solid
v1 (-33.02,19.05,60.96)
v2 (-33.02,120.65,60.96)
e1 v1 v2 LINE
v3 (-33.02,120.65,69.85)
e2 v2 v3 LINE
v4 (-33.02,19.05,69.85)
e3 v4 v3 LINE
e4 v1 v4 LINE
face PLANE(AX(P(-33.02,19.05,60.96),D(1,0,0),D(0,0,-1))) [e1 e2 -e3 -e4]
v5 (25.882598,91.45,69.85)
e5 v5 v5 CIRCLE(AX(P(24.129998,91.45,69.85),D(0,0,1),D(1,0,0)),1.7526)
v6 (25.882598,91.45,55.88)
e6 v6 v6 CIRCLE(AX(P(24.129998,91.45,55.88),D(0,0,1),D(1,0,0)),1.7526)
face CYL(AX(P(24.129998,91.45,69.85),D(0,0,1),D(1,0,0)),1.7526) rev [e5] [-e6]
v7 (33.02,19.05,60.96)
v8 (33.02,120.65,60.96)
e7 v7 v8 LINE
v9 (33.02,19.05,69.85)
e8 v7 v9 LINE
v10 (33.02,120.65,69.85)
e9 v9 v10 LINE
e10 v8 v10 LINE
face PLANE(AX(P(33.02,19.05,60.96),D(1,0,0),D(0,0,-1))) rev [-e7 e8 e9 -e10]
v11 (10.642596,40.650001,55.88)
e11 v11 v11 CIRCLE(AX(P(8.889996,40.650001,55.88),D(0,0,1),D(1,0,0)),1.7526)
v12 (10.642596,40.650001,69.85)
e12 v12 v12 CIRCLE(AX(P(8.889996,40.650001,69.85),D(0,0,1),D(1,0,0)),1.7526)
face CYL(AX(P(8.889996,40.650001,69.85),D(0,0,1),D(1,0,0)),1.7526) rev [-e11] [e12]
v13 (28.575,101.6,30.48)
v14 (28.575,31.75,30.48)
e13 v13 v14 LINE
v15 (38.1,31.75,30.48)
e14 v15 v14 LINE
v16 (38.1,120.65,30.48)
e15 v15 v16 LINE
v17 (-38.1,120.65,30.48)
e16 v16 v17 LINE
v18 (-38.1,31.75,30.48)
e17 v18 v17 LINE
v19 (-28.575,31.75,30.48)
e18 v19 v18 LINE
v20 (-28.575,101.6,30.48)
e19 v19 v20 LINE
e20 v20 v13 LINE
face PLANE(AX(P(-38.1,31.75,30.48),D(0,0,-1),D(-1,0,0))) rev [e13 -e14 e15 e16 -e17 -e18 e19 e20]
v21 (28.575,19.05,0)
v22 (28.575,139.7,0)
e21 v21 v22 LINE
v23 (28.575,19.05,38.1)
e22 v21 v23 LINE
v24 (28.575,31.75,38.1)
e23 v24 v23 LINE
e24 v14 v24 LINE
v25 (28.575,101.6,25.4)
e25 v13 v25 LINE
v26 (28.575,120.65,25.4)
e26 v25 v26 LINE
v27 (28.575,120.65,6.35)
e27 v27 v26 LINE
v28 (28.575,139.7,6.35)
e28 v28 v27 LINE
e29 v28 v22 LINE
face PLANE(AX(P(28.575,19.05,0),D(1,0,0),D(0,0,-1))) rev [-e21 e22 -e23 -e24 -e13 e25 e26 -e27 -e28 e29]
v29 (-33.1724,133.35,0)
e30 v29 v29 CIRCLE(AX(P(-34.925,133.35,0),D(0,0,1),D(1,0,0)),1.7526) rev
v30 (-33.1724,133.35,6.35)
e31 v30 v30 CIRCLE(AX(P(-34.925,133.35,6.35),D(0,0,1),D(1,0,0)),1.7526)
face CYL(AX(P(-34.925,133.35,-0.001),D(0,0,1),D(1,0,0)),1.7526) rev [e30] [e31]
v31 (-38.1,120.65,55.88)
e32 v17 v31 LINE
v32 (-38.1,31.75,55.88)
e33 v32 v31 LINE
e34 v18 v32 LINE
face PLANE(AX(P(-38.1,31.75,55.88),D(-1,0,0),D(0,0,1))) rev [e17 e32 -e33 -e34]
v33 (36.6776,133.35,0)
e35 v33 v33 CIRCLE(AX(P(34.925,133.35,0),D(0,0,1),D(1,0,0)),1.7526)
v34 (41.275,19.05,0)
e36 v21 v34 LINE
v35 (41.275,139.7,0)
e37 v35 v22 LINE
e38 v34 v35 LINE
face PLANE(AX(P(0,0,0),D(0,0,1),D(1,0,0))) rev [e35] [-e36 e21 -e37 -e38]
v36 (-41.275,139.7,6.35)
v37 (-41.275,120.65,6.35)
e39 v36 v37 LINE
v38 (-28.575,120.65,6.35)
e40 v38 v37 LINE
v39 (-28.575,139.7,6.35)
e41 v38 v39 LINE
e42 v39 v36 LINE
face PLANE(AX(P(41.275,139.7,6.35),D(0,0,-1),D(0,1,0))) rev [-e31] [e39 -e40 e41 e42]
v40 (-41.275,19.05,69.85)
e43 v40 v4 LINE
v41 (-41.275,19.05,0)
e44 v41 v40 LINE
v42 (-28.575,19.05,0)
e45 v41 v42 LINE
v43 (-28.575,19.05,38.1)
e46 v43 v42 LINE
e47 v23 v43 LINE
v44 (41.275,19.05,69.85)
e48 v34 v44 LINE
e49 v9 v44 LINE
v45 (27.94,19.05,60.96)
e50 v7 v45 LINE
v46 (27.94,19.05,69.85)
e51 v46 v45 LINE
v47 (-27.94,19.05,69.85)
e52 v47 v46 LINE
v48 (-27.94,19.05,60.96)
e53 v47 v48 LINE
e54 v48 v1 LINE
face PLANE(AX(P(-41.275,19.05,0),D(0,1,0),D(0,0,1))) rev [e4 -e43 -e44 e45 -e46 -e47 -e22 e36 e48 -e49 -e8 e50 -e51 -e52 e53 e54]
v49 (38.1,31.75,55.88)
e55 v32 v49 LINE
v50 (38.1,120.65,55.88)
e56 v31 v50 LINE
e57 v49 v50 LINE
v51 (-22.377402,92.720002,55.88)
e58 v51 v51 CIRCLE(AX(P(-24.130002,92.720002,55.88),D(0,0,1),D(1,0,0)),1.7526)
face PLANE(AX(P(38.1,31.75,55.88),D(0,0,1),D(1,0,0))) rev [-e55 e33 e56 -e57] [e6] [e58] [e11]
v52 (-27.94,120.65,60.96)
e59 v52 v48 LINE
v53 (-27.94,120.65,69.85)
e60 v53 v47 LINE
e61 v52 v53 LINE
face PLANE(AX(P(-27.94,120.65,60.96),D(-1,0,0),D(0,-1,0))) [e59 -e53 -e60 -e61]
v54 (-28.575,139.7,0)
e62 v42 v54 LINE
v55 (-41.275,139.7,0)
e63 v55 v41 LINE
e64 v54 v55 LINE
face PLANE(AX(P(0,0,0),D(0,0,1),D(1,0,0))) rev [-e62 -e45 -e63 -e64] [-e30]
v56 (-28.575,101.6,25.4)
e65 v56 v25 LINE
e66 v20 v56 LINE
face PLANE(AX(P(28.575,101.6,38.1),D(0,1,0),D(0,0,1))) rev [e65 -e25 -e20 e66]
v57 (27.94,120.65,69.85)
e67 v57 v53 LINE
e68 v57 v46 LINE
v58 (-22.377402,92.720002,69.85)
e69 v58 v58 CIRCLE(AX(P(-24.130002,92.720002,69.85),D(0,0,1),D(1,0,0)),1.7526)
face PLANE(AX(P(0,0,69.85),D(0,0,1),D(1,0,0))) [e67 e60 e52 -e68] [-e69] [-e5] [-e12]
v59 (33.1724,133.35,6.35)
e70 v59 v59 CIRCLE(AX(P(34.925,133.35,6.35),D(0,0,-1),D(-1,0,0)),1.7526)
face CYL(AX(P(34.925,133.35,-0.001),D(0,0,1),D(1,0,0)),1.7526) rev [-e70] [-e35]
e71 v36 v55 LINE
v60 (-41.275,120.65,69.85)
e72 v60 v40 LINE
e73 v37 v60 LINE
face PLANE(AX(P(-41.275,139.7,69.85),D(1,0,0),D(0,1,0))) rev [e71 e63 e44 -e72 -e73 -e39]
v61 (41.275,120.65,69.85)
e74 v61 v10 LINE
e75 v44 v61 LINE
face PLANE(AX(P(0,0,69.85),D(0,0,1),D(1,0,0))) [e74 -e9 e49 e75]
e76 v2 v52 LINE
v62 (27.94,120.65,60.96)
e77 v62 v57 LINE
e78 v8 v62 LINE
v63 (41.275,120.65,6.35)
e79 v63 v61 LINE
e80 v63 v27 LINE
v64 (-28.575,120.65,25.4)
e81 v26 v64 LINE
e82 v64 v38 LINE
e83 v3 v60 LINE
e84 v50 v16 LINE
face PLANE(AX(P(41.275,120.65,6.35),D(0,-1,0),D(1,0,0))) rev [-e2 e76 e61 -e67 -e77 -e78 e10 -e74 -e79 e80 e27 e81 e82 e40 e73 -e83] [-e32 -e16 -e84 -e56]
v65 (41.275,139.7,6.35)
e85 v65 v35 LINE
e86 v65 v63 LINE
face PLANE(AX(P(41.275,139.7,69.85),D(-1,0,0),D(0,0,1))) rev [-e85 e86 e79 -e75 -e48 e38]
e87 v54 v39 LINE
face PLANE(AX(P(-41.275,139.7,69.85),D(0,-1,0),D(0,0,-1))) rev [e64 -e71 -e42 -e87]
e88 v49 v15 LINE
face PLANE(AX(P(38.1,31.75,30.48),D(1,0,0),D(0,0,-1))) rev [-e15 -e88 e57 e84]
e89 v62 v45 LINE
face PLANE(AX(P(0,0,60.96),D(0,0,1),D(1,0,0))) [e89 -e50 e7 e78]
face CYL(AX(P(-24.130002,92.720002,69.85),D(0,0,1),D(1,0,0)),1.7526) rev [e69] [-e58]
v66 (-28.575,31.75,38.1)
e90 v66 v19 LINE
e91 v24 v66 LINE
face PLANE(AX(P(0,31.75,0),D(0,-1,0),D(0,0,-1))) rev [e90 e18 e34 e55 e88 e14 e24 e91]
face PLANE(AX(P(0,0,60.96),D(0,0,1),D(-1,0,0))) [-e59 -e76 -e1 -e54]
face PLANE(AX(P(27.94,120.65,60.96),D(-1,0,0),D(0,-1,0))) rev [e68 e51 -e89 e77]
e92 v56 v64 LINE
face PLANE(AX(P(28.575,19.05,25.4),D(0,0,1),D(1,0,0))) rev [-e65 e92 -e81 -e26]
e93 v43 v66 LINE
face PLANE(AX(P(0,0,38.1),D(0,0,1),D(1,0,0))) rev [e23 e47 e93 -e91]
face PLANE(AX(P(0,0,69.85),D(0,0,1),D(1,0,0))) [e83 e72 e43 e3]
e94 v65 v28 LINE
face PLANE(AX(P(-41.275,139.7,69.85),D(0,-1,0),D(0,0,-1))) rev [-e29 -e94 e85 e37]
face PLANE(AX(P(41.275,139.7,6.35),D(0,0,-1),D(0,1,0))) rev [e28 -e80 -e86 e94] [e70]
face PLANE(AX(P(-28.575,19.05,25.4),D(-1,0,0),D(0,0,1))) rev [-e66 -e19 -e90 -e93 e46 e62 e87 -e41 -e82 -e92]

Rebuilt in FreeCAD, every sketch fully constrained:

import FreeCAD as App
import Part
import Sketcher
Q = App.Units.Quantity


def add_polygon(sketch, points):
    """Adds a closed chain of lines whose ends are joined by coincident constraints."""
    first, n = sketch.GeometryCount, len(points)
    for a, b in zip(points, points[1:] + points[:1]):
        sketch.addGeometry(Part.LineSegment(App.Vector(*a, 0), App.Vector(*b, 0)), False)
    for i in range(n):
        sketch.addConstraint(Sketcher.Constraint("Coincident", first + i, 2, first + (i + 1) % n, 1))

doc = App.newDocument("Part")
body = doc.addObject("PartDesign::Body", "Body")

sketch1 = doc.addObject("Sketcher::SketchObject", "Sketch")
body.addObject(sketch1)
sketch1.AttachmentSupport = (doc.XY_Plane, [""])
sketch1.MapMode = "FlatFace"
add_polygon(sketch1, [(-41, 140), (-41, 19), (41, 19), (41, 140)])
sketch1.addConstraint(Sketcher.Constraint("Vertical", 0))
sketch1.addConstraint(Sketcher.Constraint("Horizontal", 1))
sketch1.addConstraint(Sketcher.Constraint("Vertical", 2))
sketch1.addConstraint(Sketcher.Constraint("Horizontal", 3))
sketch1.addConstraint(Sketcher.Constraint("DistanceX", 1, 1, 1, 2, Q("3.25 in")))
sketch1.addConstraint(Sketcher.Constraint("DistanceY", 0, 2, 0, 1, Q("4.75 in")))
sketch1.addConstraint(Sketcher.Constraint("DistanceY", -1, 1, 2, 2, Q("5.5 in")))
sketch1.addConstraint(Sketcher.Constraint("DistanceX", 0, 2, -1, 1, Q("1.625 in")))
pad1 = doc.addObject("PartDesign::Pad", "Pad")
body.addObject(pad1)
pad1.Profile = sketch1
pad1.Length = Q("2.75 in")

sketch2 = doc.addObject("Sketcher::SketchObject", "Sketch001")
body.addObject(sketch2)
sketch2.AttachmentSupport = (doc.XZ_Plane, [""])
sketch2.MapMode = "FlatFace"
sketch2.AttachmentOffset = App.Placement(App.Vector(0, 0, -5.5 * 25.4), App.Rotation())
add_polygon(sketch2, [(-38, 30), (-38, 56), (38, 56), (38, 30)])
sketch2.addConstraint(Sketcher.Constraint("Vertical", 0))
sketch2.addConstraint(Sketcher.Constraint("Horizontal", 1))
sketch2.addConstraint(Sketcher.Constraint("Vertical", 2))
sketch2.addConstraint(Sketcher.Constraint("Horizontal", 3))
sketch2.addConstraint(Sketcher.Constraint("DistanceX", 1, 1, 1, 2, Q("3 in")))
sketch2.addConstraint(Sketcher.Constraint("DistanceY", 0, 1, 0, 2, Q("1 in")))
sketch2.addConstraint(Sketcher.Constraint("DistanceX", 0, 2, -1, 1, Q("1.5 in")))
sketch2.addConstraint(Sketcher.Constraint("DistanceY", -1, 1, 0, 2, Q("2.2 in")))
pocket1 = doc.addObject("PartDesign::Pocket", "Pocket")
body.addObject(pocket1)
pocket1.Profile = sketch2
pocket1.Length = Q("4.25 in")
pocket1.Reversed = True

sketch3 = doc.addObject("Sketcher::SketchObject", "Sketch002")
body.addObject(sketch3)
sketch3.AttachmentSupport = (doc.XY_Plane, [""])
sketch3.MapMode = "FlatFace"
sketch3.AttachmentOffset = App.Placement(App.Vector(0, 0, 2.75 * 25.4), App.Rotation())
add_polygon(sketch3, [(28, 121), (28, 19), (33, 19), (33, 121)])
sketch3.addConstraint(Sketcher.Constraint("Vertical", 0))
sketch3.addConstraint(Sketcher.Constraint("Horizontal", 1))
sketch3.addConstraint(Sketcher.Constraint("Vertical", 2))
sketch3.addConstraint(Sketcher.Constraint("Horizontal", 3))
sketch3.addConstraint(Sketcher.Constraint("DistanceY", 0, 2, 0, 1, Q("4 in")))
sketch3.addConstraint(Sketcher.Constraint("DistanceX", 1, 1, 1, 2, Q("0.2 in")))
sketch3.addConstraint(Sketcher.Constraint("DistanceX", -1, 1, 0, 2, Q("1.1 in")))
sketch3.addConstraint(Sketcher.Constraint("DistanceY", -1, 1, 0, 2, Q("0.75 in")))
pocket2 = doc.addObject("PartDesign::Pocket", "Pocket001")
body.addObject(pocket2)
pocket2.Profile = sketch3
pocket2.Length = Q("0.35 in")
doc.recompute()

mirrored = doc.addObject("PartDesign::Mirrored", "Mirrored")
body.addObject(mirrored)
mirrored.Originals = [pocket2]
mirrored.MirrorPlane = (doc.YZ_Plane, [""])
body.Tip = mirrored

sketch4 = doc.addObject("Sketcher::SketchObject", "Sketch003")
body.addObject(sketch4)
sketch4.AttachmentSupport = (doc.YZ_Plane, [""])
sketch4.MapMode = "FlatFace"
sketch4.AttachmentOffset = App.Placement(App.Vector(0, 0, -1.625 * 25.4), App.Rotation())
add_polygon(sketch4, [(140, 6), (121, 6), (121, 70), (140, 70)])
sketch4.addConstraint(Sketcher.Constraint("Horizontal", 0))
sketch4.addConstraint(Sketcher.Constraint("Vertical", 1))
sketch4.addConstraint(Sketcher.Constraint("Horizontal", 2))
sketch4.addConstraint(Sketcher.Constraint("Vertical", 3))
sketch4.addConstraint(Sketcher.Constraint("DistanceY", 1, 1, 1, 2, Q("2.5 in")))
sketch4.addConstraint(Sketcher.Constraint("DistanceX", 0, 2, 0, 1, Q("0.75 in")))
sketch4.addConstraint(Sketcher.Constraint("DistanceX", -1, 1, 2, 2, Q("5.5 in")))
sketch4.addConstraint(Sketcher.Constraint("DistanceY", -1, 1, 0, 2, Q("0.25 in")))
pocket3 = doc.addObject("PartDesign::Pocket", "Pocket002")
body.addObject(pocket3)
pocket3.Profile = sketch4
pocket3.Type = "ThroughAll"
pocket3.Reversed = True

sketch5 = doc.addObject("Sketcher::SketchObject", "Sketch004")
body.addObject(sketch5)
sketch5.AttachmentSupport = (doc.XZ_Plane, [""])
sketch5.MapMode = "FlatFace"
sketch5.AttachmentOffset = App.Placement(App.Vector(0, 0, -5.5 * 25.4), App.Rotation())
add_polygon(sketch5, [(-29, 0), (-29, 25), (29, 25), (29, 0)])
sketch5.addConstraint(Sketcher.Constraint("Vertical", 0))
sketch5.addConstraint(Sketcher.Constraint("Horizontal", 1))
sketch5.addConstraint(Sketcher.Constraint("Vertical", 2))
sketch5.addConstraint(Sketcher.Constraint("Horizontal", 3))
sketch5.addConstraint(Sketcher.Constraint("Symmetric", 2, 2, 3, 2, -1, 1))
sketch5.addConstraint(Sketcher.Constraint("DistanceY", 0, 1, 0, 2, Q("1 in")))
sketch5.addConstraint(Sketcher.Constraint("DistanceX", 1, 1, 1, 2, Q("2.25 in")))
pocket4 = doc.addObject("PartDesign::Pocket", "Pocket003")
body.addObject(pocket4)
pocket4.Profile = sketch5
pocket4.Type = "ThroughAll"
pocket4.Reversed = True

sketch6 = doc.addObject("Sketcher::SketchObject", "Sketch005")
body.addObject(sketch6)
sketch6.AttachmentSupport = (doc.XY_Plane, [""])
sketch6.MapMode = "FlatFace"
sketch6.AttachmentOffset = App.Placement(App.Vector(0, 0, 2.75 * 25.4), App.Rotation())
sketch6.addGeometry(Part.Circle(App.Vector(-24.1, 92.7, 0), App.Vector(0, 0, 1), 1.8), False)
sketch6.addGeometry(Part.Circle(App.Vector(24.1, 91.5, 0), App.Vector(0, 0, 1), 1.8), False)
sketch6.addGeometry(Part.Circle(App.Vector(8.9, 40.7, 0), App.Vector(0, 0, 1), 1.8), False)
sketch6.addConstraint(Sketcher.Constraint("Equal", 0, 1))
sketch6.addConstraint(Sketcher.Constraint("Equal", 1, 2))
sketch6.addConstraint(Sketcher.Constraint("Diameter", 0, Q("0.138 in")))
sketch6.addConstraint(Sketcher.Constraint("DistanceY", 2, 3, 1, 3, Q("2 in")))
sketch6.addConstraint(Sketcher.Constraint("DistanceX", 0, 3, 1, 3, Q("1.9 in")))
sketch6.addConstraint(Sketcher.Constraint("DistanceX", 2, 3, 1, 3, Q("0.6000001 in")))
sketch6.addConstraint(Sketcher.Constraint("DistanceX", 0, 3, -1, 1, Q("0.9500001 in")))
sketch6.addConstraint(Sketcher.Constraint("DistanceY", 1, 3, 0, 3, Q("0.0500001 in")))
sketch6.addConstraint(Sketcher.Constraint("DistanceY", -1, 1, 1, 3, Q("91.45 mm")))
doc.recompute()
hole = doc.addObject("PartDesign::Hole", "Hole")
body.addObject(hole)
hole.Profile = sketch6
hole.ThreadType = "None"
hole.Diameter = Q("0.138 in")
hole.DepthType = "Dimension"
hole.Depth = Q("0.55 in")
hole.DrillPoint = "Flat"

sketch7 = doc.addObject("Sketcher::SketchObject", "Sketch006")
body.addObject(sketch7)
sketch7.AttachmentSupport = (doc.XZ_Plane, [""])
sketch7.MapMode = "FlatFace"
sketch7.AttachmentOffset = App.Placement(App.Vector(0, 0, -0.75 * 25.4), App.Rotation())
add_polygon(sketch7, [(-33, 70), (-41, 70), (-41, 0), (-29, 0), (-29, 25), (29, 25), (29, 0), (41, 0), (41, 70), (33, 70), (33, 61), (28, 61), (28, 70), (-28, 70), (-28, 61), (-33, 61)])
sketch7.addConstraint(Sketcher.Constraint("Horizontal", 0))
sketch7.addConstraint(Sketcher.Constraint("Vertical", 1))
sketch7.addConstraint(Sketcher.Constraint("Horizontal", 2))
sketch7.addConstraint(Sketcher.Constraint("Vertical", 3))
sketch7.addConstraint(Sketcher.Constraint("Horizontal", 4))
sketch7.addConstraint(Sketcher.Constraint("Vertical", 5))
sketch7.addConstraint(Sketcher.Constraint("Horizontal", 6))
sketch7.addConstraint(Sketcher.Constraint("Vertical", 7))
sketch7.addConstraint(Sketcher.Constraint("Horizontal", 8))
sketch7.addConstraint(Sketcher.Constraint("Vertical", 9))
sketch7.addConstraint(Sketcher.Constraint("Horizontal", 10))
sketch7.addConstraint(Sketcher.Constraint("Vertical", 11))
sketch7.addConstraint(Sketcher.Constraint("Horizontal", 12))
sketch7.addConstraint(Sketcher.Constraint("Vertical", 13))
sketch7.addConstraint(Sketcher.Constraint("Horizontal", 14))
sketch7.addConstraint(Sketcher.Constraint("Vertical", 15))
sketch7.addConstraint(Sketcher.Constraint("Symmetric", 2, 2, 5, 2, -1, 1))
sketch7.addConstraint(Sketcher.Constraint("Symmetric", 1, 2, 6, 2, -2))
sketch7.addConstraint(Sketcher.Constraint("Symmetric", 10, 2, 13, 2, -2))
sketch7.addConstraint(Sketcher.Constraint("Symmetric", 8, 2, 15, 2, -2))
sketch7.addConstraint(Sketcher.Constraint("Horizontal", 8, 2, 11, 2))
sketch7.addConstraint(Sketcher.Constraint("DistanceY", 3, 1, 3, 2, Q("1 in")))
sketch7.addConstraint(Sketcher.Constraint("DistanceX", 2, 1, 2, 2, Q("0.5 in")))
sketch7.addConstraint(Sketcher.Constraint("DistanceX", 10, 2, 10, 1, Q("0.2 in")))
sketch7.addConstraint(Sketcher.Constraint("DistanceX", 12, 2, 12, 1, Q("2.2 in")))
sketch7.addConstraint(Sketcher.Constraint("DistanceX", 4, 1, 4, 2, Q("2.25 in")))
sketch7.addConstraint(Sketcher.Constraint("DistanceY", 1, 2, 1, 1, Q("2.75 in")))
sketch7.addConstraint(Sketcher.Constraint("DistanceY", 9, 2, 9, 1, Q("0.35 in")))
pad2 = doc.addObject("PartDesign::Pad", "Pad001")
body.addObject(pad2)
pad2.Profile = sketch7
pad2.Length = Q("0.25 in")

sketch8 = doc.addObject("Sketcher::SketchObject", "Sketch007")
body.addObject(sketch8)
sketch8.AttachmentSupport = (doc.XY_Plane, [""])
sketch8.MapMode = "FlatFace"
sketch8.AttachmentOffset = App.Placement(App.Vector(0, 0, 1 * 25.4), App.Rotation())
add_polygon(sketch8, [(29, 102), (29, 13), (-29, 13), (-29, 102)])
sketch8.addConstraint(Sketcher.Constraint("Vertical", 0))
sketch8.addConstraint(Sketcher.Constraint("Horizontal", 1))
sketch8.addConstraint(Sketcher.Constraint("Vertical", 2))
sketch8.addConstraint(Sketcher.Constraint("Horizontal", 3))
sketch8.addConstraint(Sketcher.Constraint("DistanceY", 0, 2, 0, 1, Q("3.5 in")))
sketch8.addConstraint(Sketcher.Constraint("DistanceY", -1, 1, 2, 2, Q("4 in")))
sketch8.addConstraint(Sketcher.Constraint("DistanceX", 1, 2, 1, 1, Q("2.25 in")))
sketch8.addConstraint(Sketcher.Constraint("DistanceX", -1, 1, 0, 2, Q("1.125 in")))
pocket5 = doc.addObject("PartDesign::Pocket", "Pocket004")
body.addObject(pocket5)
pocket5.Profile = sketch8
pocket5.Length = Q("0.5 in")
pocket5.Reversed = True

sketch9 = doc.addObject("Sketcher::SketchObject", "Sketch008")
body.addObject(sketch9)
sketch9.AttachmentSupport = (doc.YZ_Plane, [""])
sketch9.MapMode = "FlatFace"
sketch9.AttachmentOffset = App.Placement(App.Vector(0, 0, 1.625 * 25.4), App.Rotation())
add_polygon(sketch9, [(19, 70), (13, 70), (13, 0), (19, 0)])
sketch9.addConstraint(Sketcher.Constraint("Horizontal", 0))
sketch9.addConstraint(Sketcher.Constraint("Vertical", 1))
sketch9.addConstraint(Sketcher.Constraint("Horizontal", 2))
sketch9.addConstraint(Sketcher.Constraint("Vertical", 3))
sketch9.addConstraint(Sketcher.Constraint("PointOnObject", 1, 2, -1))
sketch9.addConstraint(Sketcher.Constraint("DistanceX", 0, 2, 0, 1, Q("0.25 in")))
sketch9.addConstraint(Sketcher.Constraint("DistanceY", 1, 2, 1, 1, Q("2.75 in")))
sketch9.addConstraint(Sketcher.Constraint("DistanceX", -1, 1, 0, 2, Q("0.5 in")))
pocket6 = doc.addObject("PartDesign::Pocket", "Pocket005")
body.addObject(pocket6)
pocket6.Profile = sketch9
pocket6.Type = "ThroughAll"

sketch10 = doc.addObject("Sketcher::SketchObject", "Sketch009")
body.addObject(sketch10)
sketch10.AttachmentSupport = (doc.XY_Plane, [""])
sketch10.MapMode = "FlatFace"
sketch10.AttachmentOffset = App.Placement(App.Vector(0, 0, 0.25 * 25.4), App.Rotation())
sketch10.addGeometry(Part.Circle(App.Vector(-34.9, 133.3, 0), App.Vector(0, 0, 1), 1.8), False)
sketch10.addConstraint(Sketcher.Constraint("Diameter", 0, Q("0.138 in")))
sketch10.addConstraint(Sketcher.Constraint("DistanceY", -1, 1, 0, 3, Q("5.25 in")))
sketch10.addConstraint(Sketcher.Constraint("DistanceX", 0, 3, -1, 1, Q("1.375 in")))
pocket7 = doc.addObject("PartDesign::Pocket", "Pocket006")
body.addObject(pocket7)
pocket7.Profile = sketch10
pocket7.Length = Q("0.25 in")
doc.recompute()

mirrored2 = doc.addObject("PartDesign::Mirrored", "Mirrored001")
body.addObject(mirrored2)
mirrored2.Originals = [pocket7]
mirrored2.MirrorPlane = (doc.YZ_Plane, [""])
body.Tip = mirrored2

doc.recompute()
